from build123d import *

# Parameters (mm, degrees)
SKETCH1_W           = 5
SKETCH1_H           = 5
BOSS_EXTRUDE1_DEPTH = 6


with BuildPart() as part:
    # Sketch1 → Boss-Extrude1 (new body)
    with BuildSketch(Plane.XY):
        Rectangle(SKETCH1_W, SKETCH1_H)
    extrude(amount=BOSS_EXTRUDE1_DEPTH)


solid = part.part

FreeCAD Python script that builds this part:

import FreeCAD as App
import Part
import Sketcher

V = App.Vector
Q = App.Units.Quantity

doc = App.newDocument("Part")
body = doc.addObject("PartDesign::Body", "Body")

sketch1 = body.newObject("Sketcher::SketchObject", "Sketch")
sketch1.AttachmentSupport = (doc.getObject("XY_Plane"), [""])
sketch1.MapMode = "FlatFace"
sketch1.addGeometry([
    Part.LineSegment(V(-2.5, 2.5, 0), V(-2.5, -2.5, 0)),
    Part.LineSegment(V(-2.5, -2.5, 0), V(2.5, -2.5, 0)),
    Part.LineSegment(V(2.5, -2.5, 0), V(2.5, 2.5, 0)),
    Part.LineSegment(V(2.5, 2.5, 0), V(-2.5, 2.5, 0)),
], False)
sketch1.addConstraint([
    Sketcher.Constraint("Coincident", 0, 2, 1, 1),
    Sketcher.Constraint("Coincident", 1, 2, 2, 1),
    Sketcher.Constraint("Coincident", 2, 2, 3, 1),
    Sketcher.Constraint("Coincident", 3, 2, 0, 1),
    Sketcher.Constraint("Vertical", 0),
    Sketcher.Constraint("Horizontal", 1),
    Sketcher.Constraint("Vertical", 2),
    Sketcher.Constraint("Horizontal", 3),
    Sketcher.Constraint("Symmetric", 0, 2, 2, 2, -1, 1),
    Sketcher.Constraint("Equal", 3, 0),
    Sketcher.Constraint("DistanceX", 1, 1, 1, 2, Q("5 mm")),
])
pad1 = body.newObject("PartDesign::Pad", "Pad")
pad1.Profile = sketch1
pad1.Length = 6

doc.recompute()
